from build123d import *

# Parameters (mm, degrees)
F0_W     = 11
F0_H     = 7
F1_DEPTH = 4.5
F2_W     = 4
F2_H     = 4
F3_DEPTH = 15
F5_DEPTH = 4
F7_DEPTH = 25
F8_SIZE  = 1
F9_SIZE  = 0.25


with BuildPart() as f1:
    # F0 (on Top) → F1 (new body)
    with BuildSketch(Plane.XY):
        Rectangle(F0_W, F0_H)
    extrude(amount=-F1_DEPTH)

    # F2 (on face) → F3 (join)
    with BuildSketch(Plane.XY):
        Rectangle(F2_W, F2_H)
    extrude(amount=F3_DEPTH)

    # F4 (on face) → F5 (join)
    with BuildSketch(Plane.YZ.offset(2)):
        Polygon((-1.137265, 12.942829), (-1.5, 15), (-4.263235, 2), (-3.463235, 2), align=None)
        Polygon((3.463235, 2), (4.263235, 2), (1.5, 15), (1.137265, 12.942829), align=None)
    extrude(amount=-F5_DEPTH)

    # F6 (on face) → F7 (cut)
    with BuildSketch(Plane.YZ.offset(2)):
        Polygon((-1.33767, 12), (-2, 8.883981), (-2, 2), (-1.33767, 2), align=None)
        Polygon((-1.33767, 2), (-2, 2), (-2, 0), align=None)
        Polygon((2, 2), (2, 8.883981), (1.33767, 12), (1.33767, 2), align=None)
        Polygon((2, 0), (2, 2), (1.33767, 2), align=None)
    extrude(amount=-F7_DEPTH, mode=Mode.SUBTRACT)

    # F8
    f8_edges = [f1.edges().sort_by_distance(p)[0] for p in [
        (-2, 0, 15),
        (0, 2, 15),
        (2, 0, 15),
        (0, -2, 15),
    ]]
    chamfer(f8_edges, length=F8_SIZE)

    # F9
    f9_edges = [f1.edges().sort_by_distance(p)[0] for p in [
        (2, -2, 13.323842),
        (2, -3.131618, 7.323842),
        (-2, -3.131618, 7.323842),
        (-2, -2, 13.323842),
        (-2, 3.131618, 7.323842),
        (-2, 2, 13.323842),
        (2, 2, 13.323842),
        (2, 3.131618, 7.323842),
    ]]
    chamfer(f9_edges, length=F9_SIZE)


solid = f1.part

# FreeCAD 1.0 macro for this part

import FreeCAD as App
import Part
import Sketcher
from FreeCAD import Vector
Q = App.Units.Quantity


def edges_at(feature, points):
    """Names of the edges that pass closest to the given points."""
    edges = feature.Shape.Edges
    near = lambda p: min(range(len(edges)), key=lambda i: edges[i].distToShape(Part.Vertex(*p))[0])
    return sorted({f"Edge{near(p) + 1}" for p in points})

doc = App.newDocument("Part")
body = doc.addObject("PartDesign::Body", "Body")

# Sketch on XY plane
sketch1 = body.newObject("Sketcher::SketchObject", "Sketch")
sketch1.AttachmentSupport = (doc.getObject("XY_Plane"), [""])
sketch1.MapMode = "FlatFace"
sketch1.addGeometry([
    Part.LineSegment(Vector(-6, 4, 0), Vector(-6, -4, 0)),
    Part.LineSegment(Vector(-6, -4, 0), Vector(6, -4, 0)),
    Part.LineSegment(Vector(6, -4, 0), Vector(6, 4, 0)),
    Part.LineSegment(Vector(6, 4, 0), Vector(-6, 4, 0)),
], False)
sketch1.addConstraint([
    Sketcher.Constraint("Coincident", 0, 2, 1, 1),
    Sketcher.Constraint("Coincident", 1, 2, 2, 1),
    Sketcher.Constraint("Coincident", 2, 2, 3, 1),
    Sketcher.Constraint("Coincident", 3, 2, 0, 1),
    Sketcher.Constraint("Vertical", 0),
    Sketcher.Constraint("Horizontal", 1),
    Sketcher.Constraint("Vertical", 2),
    Sketcher.Constraint("Horizontal", 3),
    Sketcher.Constraint("Symmetric", 0, 2, 2, 2, -1, 1),
    Sketcher.Constraint("DistanceX", 1, 1, 1, 2, 11.0),
    Sketcher.Constraint("DistanceY", 0, 2, 0, 1, 7.0),
])
pad1 = body.newObject("PartDesign::Pad", "Pad")
pad1.Profile = sketch1
pad1.Length = 4.5
pad1.Reversed = True

# Sketch on XY plane
sketch2 = body.newObject("Sketcher::SketchObject", "Sketch001")
sketch2.AttachmentSupport = (doc.getObject("XY_Plane"), [""])
sketch2.MapMode = "FlatFace"
sketch2.addGeometry([
    Part.LineSegment(Vector(-2, 2, 0), Vector(-2, -2, 0)),
    Part.LineSegment(Vector(-2, -2, 0), Vector(2, -2, 0)),
    Part.LineSegment(Vector(2, -2, 0), Vector(2, 2, 0)),
    Part.LineSegment(Vector(2, 2, 0), Vector(-2, 2, 0)),
], False)
sketch2.addConstraint([
    Sketcher.Constraint("Coincident", 0, 2, 1, 1),
    Sketcher.Constraint("Coincident", 1, 2, 2, 1),
    Sketcher.Constraint("Coincident", 2, 2, 3, 1),
    Sketcher.Constraint("Coincident", 3, 2, 0, 1),
    Sketcher.Constraint("Vertical", 0),
    Sketcher.Constraint("Horizontal", 1),
    Sketcher.Constraint("Vertical", 2),
    Sketcher.Constraint("Horizontal", 3),
    Sketcher.Constraint("Symmetric", 0, 2, 2, 2, -1, 1),
    Sketcher.Constraint("Equal", 3, 0),
    Sketcher.Constraint("DistanceX", 1, 1, 1, 2, 4.0),
])
pad2 = body.newObject("PartDesign::Pad", "Pad001")
pad2.Profile = sketch2
pad2.Length = 15

# Sketch on YZ plane
sketch3 = body.newObject("Sketcher::SketchObject", "Sketch002")
sketch3.AttachmentSupport = (doc.getObject("YZ_Plane"), [""])
sketch3.MapMode = "FlatFace"
sketch3.AttachmentOffset = App.Placement(Vector(0, 0, 2), App.Rotation())
sketch3.addGeometry([
    Part.LineSegment(Vector(-1.1, 12.9, 0), Vector(-1.5, 15, 0)),  # 0
    Part.LineSegment(Vector(-1.5, 15, 0), Vector(-4.3, 2, 0)),  # 1
    Part.LineSegment(Vector(-4.3, 2, 0), Vector(-3.5, 2, 0)),  # 2
    Part.LineSegment(Vector(-3.5, 2, 0), Vector(-1.1, 12.9, 0)),  # 3
    Part.LineSegment(Vector(3.5, 2, 0), Vector(4.3, 2, 0)),  # 4
    Part.LineSegment(Vector(4.3, 2, 0), Vector(1.5, 15, 0)),  # 5
    Part.LineSegment(Vector(1.5, 15, 0), Vector(1.1, 12.9, 0)),  # 6
    Part.LineSegment(Vector(1.1, 12.9, 0), Vector(3.5, 2, 0)),  # 7
], False)
sketch3.addConstraint([
    Sketcher.Constraint("Coincident", 0, 2, 1, 1),
    Sketcher.Constraint("Coincident", 1, 2, 2, 1),
    Sketcher.Constraint("Coincident", 2, 2, 3, 1),
    Sketcher.Constraint("Coincident", 3, 2, 0, 1),
    Sketcher.Constraint("Coincident", 4, 2, 5, 1),
    Sketcher.Constraint("Coincident", 5, 2, 6, 1),
    Sketcher.Constraint("Coincident", 6, 2, 7, 1),
    Sketcher.Constraint("Coincident", 7, 2, 4, 1),
    Sketcher.Constraint("Horizontal", 2),
    Sketcher.Constraint("Horizontal", 4),
    Sketcher.Constraint("Symmetric", 1, 2, 4, 2, -2),
    Sketcher.Constraint("Symmetric", 0, 2, 5, 2, -2),
    Sketcher.Constraint("Symmetric", 3, 2, 6, 2, -2),
    Sketcher.Constraint("Parallel", 1, 3),
    Sketcher.Constraint("Parallel", 5, 7),
    Sketcher.Constraint("Angle", 0, Q("100.000007 deg")),
    Sketcher.Constraint("Angle", 1, Q("-101.999999 deg")),
    Sketcher.Constraint("DistanceX", 2, 1, 2, 2, 0.8),
    Sketcher.Constraint("DistanceY", -1, 1, 0, 2, 15.0),
    Sketcher.Constraint("DistanceY", -1, 1, 1, 2, 2.0),
    Sketcher.Constraint("DistanceX", 0, 2, 5, 2, 3.0),
])
pad3 = body.newObject("PartDesign::Pad", "Pad002")
pad3.Profile = sketch3
pad3.Length = 4
pad3.Reversed = True

# Sketch on YZ plane
sketch4 = body.newObject("Sketcher::SketchObject", "Sketch003")
sketch4.AttachmentSupport = (doc.getObject("YZ_Plane"), [""])
sketch4.MapMode = "FlatFace"
sketch4.AttachmentOffset = App.Placement(Vector(0, 0, 2), App.Rotation())
sketch4.addGeometry([
    Part.LineSegment(Vector(-1.3, 12, 0), Vector(-2, 8.9, 0)),  # 0
    Part.LineSegment(Vector(-2, 8.9, 0), Vector(-2, 0, 0)),  # 1
    Part.LineSegment(Vector(-2, 0, 0), Vector(-1.3, 2, 0)),  # 2
    Part.LineSegment(Vector(-1.3, 2, 0), Vector(-1.3, 12, 0)),  # 3
    Part.LineSegment(Vector(2, 8.9, 0), Vector(1.3, 12, 0)),  # 4
    Part.LineSegment(Vector(1.3, 12, 0), Vector(1.3, 2, 0)),  # 5
    Part.LineSegment(Vector(1.3, 2, 0), Vector(2, 0, 0)),  # 6
    Part.LineSegment(Vector(2, 0, 0), Vector(2, 8.9, 0)),  # 7
], False)
sketch4.addConstraint([
    Sketcher.Constraint("Coincident", 0, 2, 1, 1),
    Sketcher.Constraint("Coincident", 1, 2, 2, 1),
    Sketcher.Constraint("Coincident", 2, 2, 3, 1),
    Sketcher.Constraint("Coincident", 3, 2, 0, 1),
    Sketcher.Constraint("Coincident", 4, 2, 5, 1),
    Sketcher.Constraint("Coincident", 5, 2, 6, 1),
    Sketcher.Constraint("Coincident", 6, 2, 7, 1),
    Sketcher.Constraint("Coincident", 7, 2, 4, 1),
    Sketcher.Constraint("Vertical", 1),
    Sketcher.Constraint("Vertical", 3),
    Sketcher.Constraint("Vertical", 5),
    Sketcher.Constraint("Vertical", 7),
    Sketcher.Constraint("Symmetric", 1, 2, 6, 2, -1, 1),
    Sketcher.Constraint("Symmetric", 3, 2, 4, 2, -2),
    Sketcher.Constraint("PointOnObject", 1, 2, -1),
    Sketcher.Constraint("Horizontal", 2, 2, 5, 2),
    Sketcher.Constraint("Horizontal", 0, 2, 7, 2),
    Sketcher.Constraint("DistanceY", 3, 1, 3, 2, 10.0),
    Sketcher.Constraint("Angle", 0, Q("-101.999995 deg")),
    Sketcher.Constraint("DistanceX", 0, 2, -1, 1, 2.0),
    Sketcher.Constraint("DistanceY", -1, 1, 2, 2, 2.0),
    Sketcher.Constraint("DistanceY", 1, 2, 1, 1, 8.883981),
])
pocket1 = body.newObject("PartDesign::Pocket", "Pocket")
pocket1.Profile = sketch4
pocket1.Length = 25
doc.recompute()

chamfer = body.newObject("PartDesign::Chamfer", "Chamfer")
chamfer.Base = (pocket1, edges_at(pocket1, [
    (-2, 0, 15),
    (0, 2, 15),
    (2, 0, 15),
    (0, -2, 15),
]))
chamfer.Size = 1
doc.recompute()

chamfer2 = body.newObject("PartDesign::Chamfer", "Chamfer001")
chamfer2.Base = (chamfer, edges_at(chamfer, [
    (2, -2, 13.324),
    (2, -3.132, 7.324),
    (-2, -3.132, 7.324),
    (-2, -2, 13.324),
    (-2, 3.132, 7.324),
    (-2, 2, 13.324),
    (2, 2, 13.324),
    (2, 3.132, 7.324),
]))
chamfer2.Size = 0.25

doc.recompute()
